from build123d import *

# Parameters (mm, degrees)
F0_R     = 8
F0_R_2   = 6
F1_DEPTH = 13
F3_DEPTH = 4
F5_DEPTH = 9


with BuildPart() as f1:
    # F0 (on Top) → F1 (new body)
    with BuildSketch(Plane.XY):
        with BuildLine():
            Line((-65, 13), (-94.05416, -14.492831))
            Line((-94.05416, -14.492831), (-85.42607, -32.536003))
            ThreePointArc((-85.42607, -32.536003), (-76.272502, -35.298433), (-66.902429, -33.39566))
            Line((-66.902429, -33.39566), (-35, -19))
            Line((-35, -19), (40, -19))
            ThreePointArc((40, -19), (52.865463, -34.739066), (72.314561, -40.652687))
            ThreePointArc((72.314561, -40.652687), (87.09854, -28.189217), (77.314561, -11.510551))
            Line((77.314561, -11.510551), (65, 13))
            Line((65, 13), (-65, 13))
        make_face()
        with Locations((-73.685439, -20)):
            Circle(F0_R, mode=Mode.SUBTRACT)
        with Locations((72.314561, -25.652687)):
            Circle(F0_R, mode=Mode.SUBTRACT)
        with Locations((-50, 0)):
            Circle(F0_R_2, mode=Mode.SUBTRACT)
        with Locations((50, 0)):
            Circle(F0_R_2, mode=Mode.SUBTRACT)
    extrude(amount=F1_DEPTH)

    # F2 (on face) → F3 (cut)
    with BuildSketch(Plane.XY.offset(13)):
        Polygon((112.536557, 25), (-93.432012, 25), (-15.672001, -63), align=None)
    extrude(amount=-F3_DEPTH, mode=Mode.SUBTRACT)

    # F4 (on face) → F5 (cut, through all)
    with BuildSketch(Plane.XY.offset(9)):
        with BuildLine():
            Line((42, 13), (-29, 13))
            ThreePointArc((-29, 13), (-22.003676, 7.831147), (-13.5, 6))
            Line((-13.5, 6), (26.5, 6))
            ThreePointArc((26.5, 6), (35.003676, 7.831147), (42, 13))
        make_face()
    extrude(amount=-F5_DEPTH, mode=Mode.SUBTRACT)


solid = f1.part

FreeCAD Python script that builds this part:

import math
import FreeCAD as App
import Part
import Sketcher
Q = App.Units.Quantity


def add_polygon(sketch, points):
    """Adds a closed chain of lines whose ends are joined by coincident constraints."""
    first, n = sketch.GeometryCount, len(points)
    for a, b in zip(points, points[1:] + points[:1]):
        sketch.addGeometry(Part.LineSegment(App.Vector(*a, 0), App.Vector(*b, 0)), False)
    for i in range(n):
        sketch.addConstraint(Sketcher.Constraint("Coincident", first + i, 2, first + (i + 1) % n, 1))

doc = App.newDocument("Part")
body = doc.addObject("PartDesign::Body", "Body")

# Sketch on XY plane
sketch1 = body.newObject("Sketcher::SketchObject", "Sketch")
sketch1.AttachmentSupport = (doc.getObject("XY_Plane"), [""])
sketch1.MapMode = "FlatFace"
sketch1.addGeometry([
    Part.LineSegment(App.Vector(-65, 13, 0), App.Vector(-94.05416, -14.492831, 0)),  # 0
    Part.LineSegment(App.Vector(-94.05416, -14.492831, 0), App.Vector(-85.42607, -32.536003, 0)),  # 1
    Part.ArcOfCircle(Part.Circle(App.Vector(-75.365038, -15.744654, 0), App.Vector(0, 0, 1), 19.574825), math.radians(-120.929176), math.radians(-64.385049)),  # 2
    Part.LineSegment(App.Vector(-66.902429, -33.39566, 0), App.Vector(-35, -19, 0)),  # 3
    Part.LineSegment(App.Vector(-35, -19, 0), App.Vector(40, -19, 0)),  # 4
    Part.ArcOfCircle(Part.Circle(App.Vector(72.314562, -5.713148, 0), App.Vector(0, 0, 1), 34.939539), math.radians(-157.648894), math.radians(-90.000002)),  # 5
    Part.ArcOfCircle(Part.Circle(App.Vector(72.314562, -25.652687, 0), App.Vector(0, 0, 1), 15), math.radians(-90.000002), math.radians(70.528782)),  # 6
    Part.LineSegment(App.Vector(77.314561, -11.510551, 0), App.Vector(65, 13, 0)),  # 7
    Part.LineSegment(App.Vector(65, 13, 0), App.Vector(-65, 13, 0)),  # 8
    Part.Circle(App.Vector(-73.685439, -20, 0), App.Vector(0, 0, 1), 8),  # 9
    Part.Circle(App.Vector(72.314561, -25.652687, 0), App.Vector(0, 0, 1), 8),  # 10
    Part.Circle(App.Vector(-50, 0, 0), App.Vector(0, 0, 1), 6),  # 11
    Part.Circle(App.Vector(50, 0, 0), App.Vector(0, 0, 1), 6),  # 12
], False)
sketch1.addConstraint([
    Sketcher.Constraint("Coincident", 0, 2, 1, 1),
    Sketcher.Constraint("Coincident", 1, 2, 2, 1),
    Sketcher.Constraint("Coincident", 2, 2, 3, 1),
    Sketcher.Constraint("Coincident", 3, 2, 4, 1),
    Sketcher.Constraint("Coincident", 4, 2, 5, 1),
    Sketcher.Constraint("Tangent", 5, 2, 6, 1),
    Sketcher.Constraint("Coincident", 6, 2, 7, 1),
    Sketcher.Constraint("Coincident", 7, 2, 8, 1),
    Sketcher.Constraint("Coincident", 8, 2, 0, 1),
    Sketcher.Constraint("Horizontal", 4),
    Sketcher.Constraint("Horizontal", 8),
    Sketcher.Constraint("Coincident", 10, 3, 6, 3),
    Sketcher.Constraint("Equal", 9, 10),
    Sketcher.Constraint("Equal", 11, 12),
    Sketcher.Constraint("Symmetric", 11, 3, 12, 3, -1, 1),
    Sketcher.Constraint("PointOnObject", 11, 3, -1),
    Sketcher.Constraint("Vertical", 5, 3, 6, 3),
    Sketcher.Constraint("Diameter", 9, Q("16 mm")),
    Sketcher.Constraint("Diameter", 11, Q("12 mm")),
    Sketcher.Constraint("Radius", 6, Q("15 mm")),
    Sketcher.Constraint("DistanceX", 4, 1, 4, 2, Q("75 mm")),
    Sketcher.Constraint("DistanceX", 8, 2, 8, 1, Q("130 mm")),
    Sketcher.Constraint("Distance", 0, Q("40 mm")),
    Sketcher.Constraint("Distance", 1, Q("20 mm")),
    Sketcher.Constraint("Distance", 3, Q("35 mm")),
    Sketcher.Constraint("DistanceY", 9, 3, -1, 1, Q("20 mm")),
    Sketcher.Constraint("DistanceX", 11, 3, -1, 1, Q("50 mm")),
    Sketcher.Constraint("DistanceX", 3, 2, -1, 1, Q("35 mm")),
    Sketcher.Constraint("DistanceY", 3, 2, -1, 1, Q("19 mm")),
    Sketcher.Constraint("DistanceX", -1, 1, 7, 2, Q("65 mm")),
    Sketcher.Constraint("DistanceY", -1, 1, 7, 2, Q("13 mm")),
    Sketcher.Constraint("DistanceX", 9, 3, 6, 3, Q("146.000001 mm")),
    Sketcher.Constraint("DistanceX", 5, 3, 6, 2, Q("4.999999 mm")),
    Sketcher.Constraint("Radius", 5, Q("34.939539 mm")),
    Sketcher.Constraint("Radius", 2, Q("19.574825 mm")),
    Sketcher.Constraint("DistanceX", 2, 3, 5, 3, Q("147.6796 mm")),
    Sketcher.Constraint("DistanceX", 2, 3, -1, 1, Q("75.365038 mm")),
    Sketcher.Constraint("DistanceX", 0, 2, -1, 1, Q("94.05416 mm")),
    Sketcher.Constraint("DistanceX", 1, 2, -1, 1, Q("85.42607 mm")),
])
pad1 = body.newObject("PartDesign::Pad", "Pad")
pad1.Profile = sketch1
pad1.Length = 13

# Sketch on XY plane
sketch2 = body.newObject("Sketcher::SketchObject", "Sketch001")
sketch2.AttachmentSupport = (doc.getObject("XY_Plane"), [""])
sketch2.MapMode = "FlatFace"
sketch2.AttachmentOffset = App.Placement(App.Vector(0, 0, 13), App.Rotation())
add_polygon(sketch2, [(112.536557, 25), (-93.432012, 25), (-15.672001, -63)])  # lines 0-2
sketch2.addConstraint([
    Sketcher.Constraint("Horizontal", 0),
    Sketcher.Constraint("DistanceY", -1, 1, 0, 2, Q("25 mm")),
    Sketcher.Constraint("DistanceY", 1, 2, -1, 1, Q("63 mm")),
    Sketcher.Constraint("DistanceX", 1, 2, -1, 1, Q("15.672001 mm")),
    Sketcher.Constraint("DistanceX", 0, 2, 0, 1, Q("205.968569 mm")),
    Sketcher.Constraint("Distance", 2, Q("155.503808 mm")),
])
pocket1 = body.newObject("PartDesign::Pocket", "Pocket")
pocket1.Profile = sketch2
pocket1.Length = 4

# Sketch on XY plane
sketch3 = body.newObject("Sketcher::SketchObject", "Sketch002")
sketch3.AttachmentSupport = (doc.getObject("XY_Plane"), [""])
sketch3.MapMode = "FlatFace"
sketch3.AttachmentOffset = App.Placement(App.Vector(0, 0, 9), App.Rotation())
sketch3.addGeometry([
    Part.LineSegment(App.Vector(42, 13, 0), App.Vector(-29, 13, 0)),
    Part.ArcOfCircle(Part.Circle(App.Vector(-13.499999, 26.660716, 0), App.Vector(0, 0, 1), 20.660716), math.radians(-138.609097), math.radians(-90.000002)),
    Part.LineSegment(App.Vector(-13.5, 6, 0), App.Vector(26.5, 6, 0)),
    Part.ArcOfCircle(Part.Circle(App.Vector(26.499999, 26.660716, 0), App.Vector(0, 0, 1), 20.660716), math.radians(-89.999998), math.radians(-41.390903)),
], False)
sketch3.addConstraint([
    Sketcher.Constraint("Coincident", 0, 2, 1, 1),
    Sketcher.Constraint("Tangent", 1, 2, 2, 1),
    Sketcher.Constraint("Tangent", 2, 2, 3, 1),
    Sketcher.Constraint("Coincident", 3, 2, 0, 1),
    Sketcher.Constraint("Horizontal", 0),
    Sketcher.Constraint("Horizontal", 2),
    Sketcher.Constraint("Equal", 1, 3),
    Sketcher.Constraint("DistanceX", 0, 2, 0, 1, Q("71 mm")),
    Sketcher.Constraint("DistanceX", 2, 1, 2, 2, Q("40 mm")),
    Sketcher.Constraint("DistanceX", 0, 2, -1, 1, Q("29 mm")),
    Sketcher.Constraint("DistanceY", -1, 1, 0, 2, Q("13 mm")),
    Sketcher.Constraint("DistanceY", -1, 1, 1, 2, Q("6 mm")),
])
pocket2 = body.newObject("PartDesign::Pocket", "Pocket001")
pocket2.Profile = sketch3
pocket2.Type = "ThroughAll"

doc.recompute()
